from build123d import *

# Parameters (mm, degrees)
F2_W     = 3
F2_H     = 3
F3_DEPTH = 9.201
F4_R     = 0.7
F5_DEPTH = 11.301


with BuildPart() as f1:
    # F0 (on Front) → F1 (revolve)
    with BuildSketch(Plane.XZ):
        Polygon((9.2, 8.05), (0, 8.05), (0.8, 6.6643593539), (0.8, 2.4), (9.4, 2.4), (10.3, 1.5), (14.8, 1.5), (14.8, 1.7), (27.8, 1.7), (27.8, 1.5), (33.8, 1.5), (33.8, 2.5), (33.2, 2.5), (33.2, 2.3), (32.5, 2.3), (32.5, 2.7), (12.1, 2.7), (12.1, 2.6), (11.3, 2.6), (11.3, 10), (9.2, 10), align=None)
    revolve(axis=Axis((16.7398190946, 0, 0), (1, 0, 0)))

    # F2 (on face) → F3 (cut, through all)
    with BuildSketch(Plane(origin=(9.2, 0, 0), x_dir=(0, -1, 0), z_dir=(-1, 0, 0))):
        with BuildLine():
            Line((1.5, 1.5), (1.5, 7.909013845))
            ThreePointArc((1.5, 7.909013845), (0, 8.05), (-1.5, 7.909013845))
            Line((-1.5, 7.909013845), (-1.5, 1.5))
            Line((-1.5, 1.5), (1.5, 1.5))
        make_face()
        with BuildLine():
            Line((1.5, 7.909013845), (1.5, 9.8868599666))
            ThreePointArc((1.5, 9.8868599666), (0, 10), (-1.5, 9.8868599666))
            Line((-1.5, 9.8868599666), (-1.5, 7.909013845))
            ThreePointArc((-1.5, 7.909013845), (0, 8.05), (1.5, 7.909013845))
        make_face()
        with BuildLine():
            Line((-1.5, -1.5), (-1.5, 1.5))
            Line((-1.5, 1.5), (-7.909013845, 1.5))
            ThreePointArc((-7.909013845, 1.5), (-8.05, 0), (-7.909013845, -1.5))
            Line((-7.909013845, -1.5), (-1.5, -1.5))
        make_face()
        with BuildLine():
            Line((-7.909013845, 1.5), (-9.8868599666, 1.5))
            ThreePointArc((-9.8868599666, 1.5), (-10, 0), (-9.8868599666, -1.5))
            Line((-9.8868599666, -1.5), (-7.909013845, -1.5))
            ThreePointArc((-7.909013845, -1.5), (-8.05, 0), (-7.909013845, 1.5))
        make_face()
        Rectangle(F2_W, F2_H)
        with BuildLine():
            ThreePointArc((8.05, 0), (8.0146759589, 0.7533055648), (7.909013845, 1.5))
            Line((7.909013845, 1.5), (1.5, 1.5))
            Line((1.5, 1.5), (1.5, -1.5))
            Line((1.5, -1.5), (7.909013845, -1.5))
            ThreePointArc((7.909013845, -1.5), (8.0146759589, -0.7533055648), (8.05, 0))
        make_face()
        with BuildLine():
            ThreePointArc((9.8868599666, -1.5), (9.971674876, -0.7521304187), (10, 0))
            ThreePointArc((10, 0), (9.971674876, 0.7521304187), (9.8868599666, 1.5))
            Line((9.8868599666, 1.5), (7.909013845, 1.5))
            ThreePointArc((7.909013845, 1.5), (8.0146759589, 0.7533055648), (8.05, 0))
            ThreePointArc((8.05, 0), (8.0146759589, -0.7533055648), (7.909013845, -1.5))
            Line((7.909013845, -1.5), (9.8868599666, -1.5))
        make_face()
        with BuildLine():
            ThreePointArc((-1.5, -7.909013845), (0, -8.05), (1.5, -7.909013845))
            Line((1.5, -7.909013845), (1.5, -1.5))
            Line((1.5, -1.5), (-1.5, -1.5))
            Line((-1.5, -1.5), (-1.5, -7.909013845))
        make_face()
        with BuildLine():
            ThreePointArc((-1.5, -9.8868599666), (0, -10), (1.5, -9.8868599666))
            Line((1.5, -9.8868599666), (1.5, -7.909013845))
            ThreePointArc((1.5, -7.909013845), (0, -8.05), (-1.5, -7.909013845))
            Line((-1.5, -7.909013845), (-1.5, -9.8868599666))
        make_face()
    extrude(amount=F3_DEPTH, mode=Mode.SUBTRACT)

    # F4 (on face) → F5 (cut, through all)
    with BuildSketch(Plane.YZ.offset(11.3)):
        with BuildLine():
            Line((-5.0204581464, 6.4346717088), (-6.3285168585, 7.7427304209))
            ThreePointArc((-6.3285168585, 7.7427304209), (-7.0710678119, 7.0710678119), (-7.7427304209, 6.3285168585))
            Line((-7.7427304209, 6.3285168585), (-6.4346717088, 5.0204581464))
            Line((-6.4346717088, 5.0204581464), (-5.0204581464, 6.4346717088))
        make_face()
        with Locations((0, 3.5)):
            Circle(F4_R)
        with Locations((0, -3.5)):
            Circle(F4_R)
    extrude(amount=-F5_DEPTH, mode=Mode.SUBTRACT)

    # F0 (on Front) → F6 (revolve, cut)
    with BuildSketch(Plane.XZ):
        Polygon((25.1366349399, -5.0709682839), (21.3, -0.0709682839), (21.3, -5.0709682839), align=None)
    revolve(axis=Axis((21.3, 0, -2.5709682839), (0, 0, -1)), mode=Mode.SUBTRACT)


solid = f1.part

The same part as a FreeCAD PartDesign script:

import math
import FreeCAD as App
import Part
import Sketcher

V = App.Vector
Q = App.Units.Quantity


def add_polygon(sketch, points):
    """Adds a closed chain of lines whose ends are joined by coincident constraints."""
    first, n = sketch.GeometryCount, len(points)
    for a, b in zip(points, points[1:] + points[:1]):
        sketch.addGeometry(Part.LineSegment(App.Vector(*a, 0), App.Vector(*b, 0)), False)
    for i in range(n):
        sketch.addConstraint(Sketcher.Constraint("Coincident", first + i, 2, first + (i + 1) % n, 1))

doc = App.newDocument("Part")
body = doc.addObject("PartDesign::Body", "Body")

sketch1 = doc.addObject("Sketcher::SketchObject", "Sketch")
body.addObject(sketch1)
sketch1.AttachmentSupport = (doc.XZ_Plane, [""])
sketch1.MapMode = "FlatFace"
add_polygon(sketch1, [(9.2, 8.05), (0, 8.05), (0.8, 6.664359), (0.8, 2.4), (9.4, 2.4), (10.3, 1.5), (14.8, 1.5), (14.8, 1.7), (27.8, 1.7), (27.8, 1.5), (33.8, 1.5), (33.8, 2.5), (33.2, 2.5), (33.2, 2.3), (32.5, 2.3), (32.5, 2.7), (12.1, 2.7), (12.1, 2.6), (11.3, 2.6), (11.3, 10), (9.2, 10)])
sketch1.addConstraint([
    Sketcher.Constraint("Horizontal", 0),
    Sketcher.Constraint("Vertical", 2),
    Sketcher.Constraint("Horizontal", 3),
    Sketcher.Constraint("Horizontal", 5),
    Sketcher.Constraint("Vertical", 6),
    Sketcher.Constraint("Horizontal", 7),
    Sketcher.Constraint("Vertical", 8),
    Sketcher.Constraint("Horizontal", 9),
    Sketcher.Constraint("Vertical", 10),
    Sketcher.Constraint("Horizontal", 11),
    Sketcher.Constraint("Vertical", 12),
    Sketcher.Constraint("Horizontal", 13),
    Sketcher.Constraint("Vertical", 14),
    Sketcher.Constraint("Horizontal", 15),
    Sketcher.Constraint("Vertical", 16),
    Sketcher.Constraint("Horizontal", 17),
    Sketcher.Constraint("Vertical", 18),
    Sketcher.Constraint("Horizontal", 19),
    Sketcher.Constraint("Vertical", 20),
    Sketcher.Constraint("PointOnObject", 0, 2, -2),
    Sketcher.Constraint("Horizontal", 5, 2, 8, 2),
    Sketcher.Constraint("Equal", 8, 12),
    Sketcher.Constraint("DistanceX", 7, 1, 7, 2, Q("13 mm")),
    Sketcher.Constraint("DistanceX", 9, 1, 9, 2, Q("6 mm")),
    Sketcher.Constraint("DistanceY", 10, 1, 10, 2, Q("1 mm")),
    Sketcher.Constraint("Angle", 1, Q("-60 deg")),
    Sketcher.Constraint("Angle", 4, Q("-45 deg")),
    Sketcher.Constraint("DistanceX", 0, 2, 0, 1, Q("9.2 mm")),
    Sketcher.Constraint("DistanceX", 3, 1, 3, 2, Q("8.6 mm")),
    Sketcher.Constraint("DistanceX", 5, 1, 5, 2, Q("4.5 mm")),
    Sketcher.Constraint("DistanceX", 11, 2, 11, 1, Q("0.6 mm")),
    Sketcher.Constraint("DistanceX", 13, 2, 13, 1, Q("0.7 mm")),
    Sketcher.Constraint("DistanceX", 15, 2, 15, 1, Q("20.4 mm")),
    Sketcher.Constraint("DistanceX", 17, 2, 17, 1, Q("0.8 mm")),
    Sketcher.Constraint("DistanceX", 19, 2, 19, 1, Q("2.1 mm")),
    Sketcher.Constraint("DistanceY", 6, 1, 6, 2, Q("0.2 mm")),
    Sketcher.Constraint("DistanceY", 14, 1, 14, 2, Q("0.4 mm")),
    Sketcher.Constraint("DistanceY", 16, 2, 16, 1, Q("0.1 mm")),
    Sketcher.Constraint("DistanceY", 18, 1, 18, 2, Q("7.4 mm")),
    Sketcher.Constraint("DistanceY", -1, 1, 18, 2, Q("10 mm")),
    Sketcher.Constraint("DistanceX", 2, 2, 5, 2, Q("14 mm")),
    Sketcher.Constraint("DistanceY", 20, 2, 20, 1, Q("1.95 mm")),
])
revolution = doc.addObject("PartDesign::Revolution", "Revolution")
body.addObject(revolution)
revolution.Profile = sketch1
revolution.ReferenceAxis = (sketch1, ["H_Axis"])
revolution.Angle = 360

sketch2 = doc.addObject("Sketcher::SketchObject", "Sketch001")
body.addObject(sketch2)
sketch2.AttachmentSupport = (doc.YZ_Plane, [""])
sketch2.MapMode = "FlatFace"
sketch2.AttachmentOffset = App.Placement(V(0, 0, 9.2), App.Rotation())
sketch2.addGeometry([
    Part.ArcOfCircle(Part.Circle(V(0, 0, 0), V(0, 0, 1), 10), math.radians(81.373073), math.radians(98.626927)),
    Part.LineSegment(V(1.5, 9.88686, 0), V(1.5, 1.5, 0)),
    Part.LineSegment(V(1.5, 1.5, 0), V(9.88686, 1.5, 0)),
    Part.ArcOfCircle(Part.Circle(V(0, 0, 0), V(0, 0, 1), 10), math.radians(-8.626927), math.radians(8.626927)),
    Part.LineSegment(V(9.88686, -1.5, 0), V(1.5, -1.5, 0)),
    Part.LineSegment(V(1.5, -1.5, 0), V(1.5, -9.88686, 0)),
    Part.ArcOfCircle(Part.Circle(V(0, 0, 0), V(0, 0, 1), 10), math.radians(-98.626927), math.radians(-81.373073)),
    Part.LineSegment(V(-1.5, -9.88686, 0), V(-1.5, -1.5, 0)),
    Part.LineSegment(V(-1.5, -1.5, 0), V(-9.88686, -1.5, 0)),
    Part.ArcOfCircle(Part.Circle(V(0, 0, 0), V(0, 0, 1), 10), math.radians(-180), math.radians(-171.373073)),
    Part.ArcOfCircle(Part.Circle(V(0, 0, 0), V(0, 0, 1), 10), math.radians(171.373073), math.radians(180)),
    Part.LineSegment(V(-9.88686, 1.5, 0), V(-1.5, 1.5, 0)),
    Part.LineSegment(V(-1.5, 1.5, 0), V(-1.5, 9.88686, 0)),
], False)
sketch2.addConstraint([
    Sketcher.Constraint("Coincident", 0, 1, 1, 1),
    Sketcher.Constraint("Coincident", 1, 2, 2, 1),
    Sketcher.Constraint("Coincident", 2, 2, 3, 2),
    Sketcher.Constraint("Coincident", 3, 1, 4, 1),
    Sketcher.Constraint("Coincident", 4, 2, 5, 1),
    Sketcher.Constraint("Coincident", 5, 2, 6, 2),
    Sketcher.Constraint("Coincident", 6, 1, 7, 1),
    Sketcher.Constraint("Coincident", 7, 2, 8, 1),
    Sketcher.Constraint("Coincident", 8, 2, 9, 2),
    Sketcher.Constraint("Tangent", 9, 1, 10, 2),
    Sketcher.Constraint("Coincident", 10, 1, 11, 1),
    Sketcher.Constraint("Coincident", 11, 2, 12, 1),
    Sketcher.Constraint("Coincident", 12, 2, 0, 2),
    Sketcher.Constraint("Vertical", 1),
    Sketcher.Constraint("Horizontal", 2),
    Sketcher.Constraint("Horizontal", 4),
    Sketcher.Constraint("Vertical", 5),
    Sketcher.Constraint("Vertical", 7),
    Sketcher.Constraint("Horizontal", 8),
    Sketcher.Constraint("Horizontal", 11),
    Sketcher.Constraint("Vertical", 12),
    Sketcher.Constraint("Coincident", 0, 3, -1, 1),
    Sketcher.Constraint("Coincident", 3, 3, -1, 1),
    Sketcher.Constraint("Coincident", 6, 3, -1, 1),
    Sketcher.Constraint("Coincident", 9, 3, -1, 1),
    Sketcher.Constraint("Equal", 0, 3),
    Sketcher.Constraint("Equal", 3, 6),
    Sketcher.Constraint("Equal", 6, 9),
    Sketcher.Constraint("Equal", 9, 10),
    Sketcher.Constraint("Symmetric", 1, 2, 7, 2, -1, 1),
    Sketcher.Constraint("Symmetric", 4, 2, 11, 2, -1, 1),
    Sketcher.Constraint("Symmetric", 4, 2, 7, 2, -2),
    Sketcher.Constraint("PointOnObject", 9, 1, -1),
    Sketcher.Constraint("Equal", 11, 1),
    Sketcher.Constraint("Radius", 0, Q("10 mm")),
    Sketcher.Constraint("DistanceY", 3, 1, 2, 2, Q("3 mm")),
])
pocket1 = doc.addObject("PartDesign::Pocket", "Pocket")
body.addObject(pocket1)
pocket1.Profile = sketch2
pocket1.Type = "ThroughAll"

sketch3 = doc.addObject("Sketcher::SketchObject", "Sketch002")
body.addObject(sketch3)
sketch3.AttachmentSupport = (doc.YZ_Plane, [""])
sketch3.MapMode = "FlatFace"
sketch3.AttachmentOffset = App.Placement(V(0, 0, 11.3), App.Rotation())
sketch3.addGeometry([
    Part.LineSegment(V(-5.020458, 6.434672, 0), V(-6.328517, 7.74273, 0)),
    Part.ArcOfCircle(Part.Circle(V(0, 0, 0), V(0, 0, 1), 10), math.radians(129.26083), math.radians(140.73917)),
    Part.LineSegment(V(-7.74273, 6.328517, 0), V(-6.434672, 5.020458, 0)),
    Part.LineSegment(V(-6.434672, 5.020458, 0), V(-5.020458, 6.434672, 0)),
    Part.Circle(V(0, 3.5, 0), V(0, 0, 1), 0.7),
    Part.Circle(V(0, -3.5, 0), V(0, 0, 1), 0.7),
], False)
sketch3.addConstraint([
    Sketcher.Constraint("Coincident", 0, 2, 1, 1),
    Sketcher.Constraint("Coincident", 1, 2, 2, 1),
    Sketcher.Constraint("Coincident", 2, 2, 3, 1),
    Sketcher.Constraint("Coincident", 3, 2, 0, 1),
    Sketcher.Constraint("Coincident", 1, 3, -1, 1),
    Sketcher.Constraint("Equal", 4, 5),
    Sketcher.Constraint("Symmetric", 4, 3, 5, 3, -1, 1),
    Sketcher.Constraint("PointOnObject", 4, 3, -2),
    Sketcher.Constraint("Parallel", 0, 2),
    Sketcher.Constraint("Perpendicular", 2, 3),
    Sketcher.Constraint("Equal", 0, 2),
    Sketcher.Constraint("Radius", 1, Q("10 mm")),
    Sketcher.Constraint("Diameter", 4, Q("1.4 mm")),
    Sketcher.Constraint("Angle", 0, Q("135 deg")),
    Sketcher.Constraint("Distance", 3, Q("2 mm")),
    Sketcher.Constraint("DistanceY", 5, 3, 4, 3, Q("7 mm")),
    Sketcher.Constraint("DistanceX", 2, 2, -1, 1, Q("6.434672 mm")),
])
pocket2 = doc.addObject("PartDesign::Pocket", "Pocket001")
body.addObject(pocket2)
pocket2.Profile = sketch3
pocket2.Type = "ThroughAll"

sketch4 = doc.addObject("Sketcher::SketchObject", "Sketch003")
body.addObject(sketch4)
sketch4.AttachmentSupport = (doc.XZ_Plane, [""])
sketch4.MapMode = "FlatFace"
add_polygon(sketch4, [(25.136635, -5.070968), (21.3, -0.070968), (21.3, -5.070968)])
sketch4.addGeometry(Part.LineSegment(V(21.3, -0.070968, 0), V(21.3, -5.070968, 0)), True)
sketch4.addConstraint([
    Sketcher.Constraint("Vertical", 1),
    Sketcher.Constraint("Horizontal", 2),
    Sketcher.Constraint("Vertical", 3),
    Sketcher.Constraint("Coincident", 3, 1, 0, 2),
    Sketcher.Constraint("Horizontal", 2, 2, 3, 2),
    Sketcher.Constraint("DistanceY", 1, 2, 1, 1, Q("5 mm")),
    Sketcher.Constraint("Angle", 0, Q("127.5 deg")),
    Sketcher.Constraint("DistanceX", -1, 1, 0, 2, Q("21.3 mm")),
    Sketcher.Constraint("DistanceY", 0, 2, -1, 1, Q("0.070968 mm")),
])
groove = doc.addObject("PartDesign::Groove", "Groove")
body.addObject(groove)
groove.Profile = sketch4
groove.ReferenceAxis = (sketch4, ["Axis0"])
groove.Angle = 360

doc.recompute()
